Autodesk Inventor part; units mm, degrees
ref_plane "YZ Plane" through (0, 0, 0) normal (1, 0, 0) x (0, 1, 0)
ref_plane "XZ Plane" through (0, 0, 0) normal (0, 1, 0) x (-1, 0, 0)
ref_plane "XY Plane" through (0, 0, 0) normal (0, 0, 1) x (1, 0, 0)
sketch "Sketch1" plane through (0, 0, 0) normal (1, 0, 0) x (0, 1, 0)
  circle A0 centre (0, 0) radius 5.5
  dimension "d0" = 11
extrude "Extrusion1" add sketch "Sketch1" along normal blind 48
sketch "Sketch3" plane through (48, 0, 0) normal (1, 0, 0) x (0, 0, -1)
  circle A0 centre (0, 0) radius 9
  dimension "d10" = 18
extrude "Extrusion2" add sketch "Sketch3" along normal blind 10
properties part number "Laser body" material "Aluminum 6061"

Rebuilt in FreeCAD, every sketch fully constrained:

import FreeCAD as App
import Part
import Sketcher
Q = App.Units.Quantity

doc = App.newDocument("Part")
params = doc.addObject("Spreadsheet::Sheet", "Params")
for row, (alias, value) in enumerate([
    ("sketch1_diameter", "11 mm"),
    ("pad1_length", "48 mm"),
    ("sketch2_diameter", "18 mm"),
    ("pad2_length", "10 mm"),
], start=1):
    params.set(f"A{row}", alias)
    params.set(f"B{row}", "=" + value)
    params.setAlias(f"B{row}", alias)

body = doc.addObject("PartDesign::Body", "Body")

# Sketch on YZ plane
sketch1 = body.newObject("Sketcher::SketchObject", "Sketch")
sketch1.AttachmentSupport = (doc.getObject("YZ_Plane"), [""])
sketch1.MapMode = "FlatFace"
sketch1.addGeometry(Part.Circle(App.Vector(0, 0, 0), App.Vector(0, 0, 1), 5.5), False)
sketch1.addConstraint(Sketcher.Constraint("Coincident", 0, 3, -1, 1))
sketch1.addConstraint(Sketcher.Constraint("Diameter", 0, Q("11 mm")))
sketch1.setExpression("Constraints[1]", "Params.sketch1_diameter")
pad1 = body.newObject("PartDesign::Pad", "Pad")
pad1.Profile = sketch1
pad1.setExpression("Length", "Params.pad1_length")

# Sketch on YZ plane
sketch2 = body.newObject("Sketcher::SketchObject", "Sketch001")
sketch2.AttachmentSupport = (doc.getObject("YZ_Plane"), [""])
sketch2.MapMode = "FlatFace"
sketch2.AttachmentOffset = App.Placement(App.Vector(0, 0, 48), App.Rotation())
sketch2.addGeometry(Part.Circle(App.Vector(0, 0, 0), App.Vector(0, 0, 1), 9), False)
sketch2.addConstraint(Sketcher.Constraint("Coincident", 0, 3, -1, 1))
sketch2.addConstraint(Sketcher.Constraint("Diameter", 0, Q("18 mm")))
sketch2.setExpression("Constraints[1]", "Params.sketch2_diameter")
pad2 = body.newObject("PartDesign::Pad", "Pad001")
pad2.Profile = sketch2
pad2.setExpression("Length", "Params.pad2_length")

doc.recompute()
